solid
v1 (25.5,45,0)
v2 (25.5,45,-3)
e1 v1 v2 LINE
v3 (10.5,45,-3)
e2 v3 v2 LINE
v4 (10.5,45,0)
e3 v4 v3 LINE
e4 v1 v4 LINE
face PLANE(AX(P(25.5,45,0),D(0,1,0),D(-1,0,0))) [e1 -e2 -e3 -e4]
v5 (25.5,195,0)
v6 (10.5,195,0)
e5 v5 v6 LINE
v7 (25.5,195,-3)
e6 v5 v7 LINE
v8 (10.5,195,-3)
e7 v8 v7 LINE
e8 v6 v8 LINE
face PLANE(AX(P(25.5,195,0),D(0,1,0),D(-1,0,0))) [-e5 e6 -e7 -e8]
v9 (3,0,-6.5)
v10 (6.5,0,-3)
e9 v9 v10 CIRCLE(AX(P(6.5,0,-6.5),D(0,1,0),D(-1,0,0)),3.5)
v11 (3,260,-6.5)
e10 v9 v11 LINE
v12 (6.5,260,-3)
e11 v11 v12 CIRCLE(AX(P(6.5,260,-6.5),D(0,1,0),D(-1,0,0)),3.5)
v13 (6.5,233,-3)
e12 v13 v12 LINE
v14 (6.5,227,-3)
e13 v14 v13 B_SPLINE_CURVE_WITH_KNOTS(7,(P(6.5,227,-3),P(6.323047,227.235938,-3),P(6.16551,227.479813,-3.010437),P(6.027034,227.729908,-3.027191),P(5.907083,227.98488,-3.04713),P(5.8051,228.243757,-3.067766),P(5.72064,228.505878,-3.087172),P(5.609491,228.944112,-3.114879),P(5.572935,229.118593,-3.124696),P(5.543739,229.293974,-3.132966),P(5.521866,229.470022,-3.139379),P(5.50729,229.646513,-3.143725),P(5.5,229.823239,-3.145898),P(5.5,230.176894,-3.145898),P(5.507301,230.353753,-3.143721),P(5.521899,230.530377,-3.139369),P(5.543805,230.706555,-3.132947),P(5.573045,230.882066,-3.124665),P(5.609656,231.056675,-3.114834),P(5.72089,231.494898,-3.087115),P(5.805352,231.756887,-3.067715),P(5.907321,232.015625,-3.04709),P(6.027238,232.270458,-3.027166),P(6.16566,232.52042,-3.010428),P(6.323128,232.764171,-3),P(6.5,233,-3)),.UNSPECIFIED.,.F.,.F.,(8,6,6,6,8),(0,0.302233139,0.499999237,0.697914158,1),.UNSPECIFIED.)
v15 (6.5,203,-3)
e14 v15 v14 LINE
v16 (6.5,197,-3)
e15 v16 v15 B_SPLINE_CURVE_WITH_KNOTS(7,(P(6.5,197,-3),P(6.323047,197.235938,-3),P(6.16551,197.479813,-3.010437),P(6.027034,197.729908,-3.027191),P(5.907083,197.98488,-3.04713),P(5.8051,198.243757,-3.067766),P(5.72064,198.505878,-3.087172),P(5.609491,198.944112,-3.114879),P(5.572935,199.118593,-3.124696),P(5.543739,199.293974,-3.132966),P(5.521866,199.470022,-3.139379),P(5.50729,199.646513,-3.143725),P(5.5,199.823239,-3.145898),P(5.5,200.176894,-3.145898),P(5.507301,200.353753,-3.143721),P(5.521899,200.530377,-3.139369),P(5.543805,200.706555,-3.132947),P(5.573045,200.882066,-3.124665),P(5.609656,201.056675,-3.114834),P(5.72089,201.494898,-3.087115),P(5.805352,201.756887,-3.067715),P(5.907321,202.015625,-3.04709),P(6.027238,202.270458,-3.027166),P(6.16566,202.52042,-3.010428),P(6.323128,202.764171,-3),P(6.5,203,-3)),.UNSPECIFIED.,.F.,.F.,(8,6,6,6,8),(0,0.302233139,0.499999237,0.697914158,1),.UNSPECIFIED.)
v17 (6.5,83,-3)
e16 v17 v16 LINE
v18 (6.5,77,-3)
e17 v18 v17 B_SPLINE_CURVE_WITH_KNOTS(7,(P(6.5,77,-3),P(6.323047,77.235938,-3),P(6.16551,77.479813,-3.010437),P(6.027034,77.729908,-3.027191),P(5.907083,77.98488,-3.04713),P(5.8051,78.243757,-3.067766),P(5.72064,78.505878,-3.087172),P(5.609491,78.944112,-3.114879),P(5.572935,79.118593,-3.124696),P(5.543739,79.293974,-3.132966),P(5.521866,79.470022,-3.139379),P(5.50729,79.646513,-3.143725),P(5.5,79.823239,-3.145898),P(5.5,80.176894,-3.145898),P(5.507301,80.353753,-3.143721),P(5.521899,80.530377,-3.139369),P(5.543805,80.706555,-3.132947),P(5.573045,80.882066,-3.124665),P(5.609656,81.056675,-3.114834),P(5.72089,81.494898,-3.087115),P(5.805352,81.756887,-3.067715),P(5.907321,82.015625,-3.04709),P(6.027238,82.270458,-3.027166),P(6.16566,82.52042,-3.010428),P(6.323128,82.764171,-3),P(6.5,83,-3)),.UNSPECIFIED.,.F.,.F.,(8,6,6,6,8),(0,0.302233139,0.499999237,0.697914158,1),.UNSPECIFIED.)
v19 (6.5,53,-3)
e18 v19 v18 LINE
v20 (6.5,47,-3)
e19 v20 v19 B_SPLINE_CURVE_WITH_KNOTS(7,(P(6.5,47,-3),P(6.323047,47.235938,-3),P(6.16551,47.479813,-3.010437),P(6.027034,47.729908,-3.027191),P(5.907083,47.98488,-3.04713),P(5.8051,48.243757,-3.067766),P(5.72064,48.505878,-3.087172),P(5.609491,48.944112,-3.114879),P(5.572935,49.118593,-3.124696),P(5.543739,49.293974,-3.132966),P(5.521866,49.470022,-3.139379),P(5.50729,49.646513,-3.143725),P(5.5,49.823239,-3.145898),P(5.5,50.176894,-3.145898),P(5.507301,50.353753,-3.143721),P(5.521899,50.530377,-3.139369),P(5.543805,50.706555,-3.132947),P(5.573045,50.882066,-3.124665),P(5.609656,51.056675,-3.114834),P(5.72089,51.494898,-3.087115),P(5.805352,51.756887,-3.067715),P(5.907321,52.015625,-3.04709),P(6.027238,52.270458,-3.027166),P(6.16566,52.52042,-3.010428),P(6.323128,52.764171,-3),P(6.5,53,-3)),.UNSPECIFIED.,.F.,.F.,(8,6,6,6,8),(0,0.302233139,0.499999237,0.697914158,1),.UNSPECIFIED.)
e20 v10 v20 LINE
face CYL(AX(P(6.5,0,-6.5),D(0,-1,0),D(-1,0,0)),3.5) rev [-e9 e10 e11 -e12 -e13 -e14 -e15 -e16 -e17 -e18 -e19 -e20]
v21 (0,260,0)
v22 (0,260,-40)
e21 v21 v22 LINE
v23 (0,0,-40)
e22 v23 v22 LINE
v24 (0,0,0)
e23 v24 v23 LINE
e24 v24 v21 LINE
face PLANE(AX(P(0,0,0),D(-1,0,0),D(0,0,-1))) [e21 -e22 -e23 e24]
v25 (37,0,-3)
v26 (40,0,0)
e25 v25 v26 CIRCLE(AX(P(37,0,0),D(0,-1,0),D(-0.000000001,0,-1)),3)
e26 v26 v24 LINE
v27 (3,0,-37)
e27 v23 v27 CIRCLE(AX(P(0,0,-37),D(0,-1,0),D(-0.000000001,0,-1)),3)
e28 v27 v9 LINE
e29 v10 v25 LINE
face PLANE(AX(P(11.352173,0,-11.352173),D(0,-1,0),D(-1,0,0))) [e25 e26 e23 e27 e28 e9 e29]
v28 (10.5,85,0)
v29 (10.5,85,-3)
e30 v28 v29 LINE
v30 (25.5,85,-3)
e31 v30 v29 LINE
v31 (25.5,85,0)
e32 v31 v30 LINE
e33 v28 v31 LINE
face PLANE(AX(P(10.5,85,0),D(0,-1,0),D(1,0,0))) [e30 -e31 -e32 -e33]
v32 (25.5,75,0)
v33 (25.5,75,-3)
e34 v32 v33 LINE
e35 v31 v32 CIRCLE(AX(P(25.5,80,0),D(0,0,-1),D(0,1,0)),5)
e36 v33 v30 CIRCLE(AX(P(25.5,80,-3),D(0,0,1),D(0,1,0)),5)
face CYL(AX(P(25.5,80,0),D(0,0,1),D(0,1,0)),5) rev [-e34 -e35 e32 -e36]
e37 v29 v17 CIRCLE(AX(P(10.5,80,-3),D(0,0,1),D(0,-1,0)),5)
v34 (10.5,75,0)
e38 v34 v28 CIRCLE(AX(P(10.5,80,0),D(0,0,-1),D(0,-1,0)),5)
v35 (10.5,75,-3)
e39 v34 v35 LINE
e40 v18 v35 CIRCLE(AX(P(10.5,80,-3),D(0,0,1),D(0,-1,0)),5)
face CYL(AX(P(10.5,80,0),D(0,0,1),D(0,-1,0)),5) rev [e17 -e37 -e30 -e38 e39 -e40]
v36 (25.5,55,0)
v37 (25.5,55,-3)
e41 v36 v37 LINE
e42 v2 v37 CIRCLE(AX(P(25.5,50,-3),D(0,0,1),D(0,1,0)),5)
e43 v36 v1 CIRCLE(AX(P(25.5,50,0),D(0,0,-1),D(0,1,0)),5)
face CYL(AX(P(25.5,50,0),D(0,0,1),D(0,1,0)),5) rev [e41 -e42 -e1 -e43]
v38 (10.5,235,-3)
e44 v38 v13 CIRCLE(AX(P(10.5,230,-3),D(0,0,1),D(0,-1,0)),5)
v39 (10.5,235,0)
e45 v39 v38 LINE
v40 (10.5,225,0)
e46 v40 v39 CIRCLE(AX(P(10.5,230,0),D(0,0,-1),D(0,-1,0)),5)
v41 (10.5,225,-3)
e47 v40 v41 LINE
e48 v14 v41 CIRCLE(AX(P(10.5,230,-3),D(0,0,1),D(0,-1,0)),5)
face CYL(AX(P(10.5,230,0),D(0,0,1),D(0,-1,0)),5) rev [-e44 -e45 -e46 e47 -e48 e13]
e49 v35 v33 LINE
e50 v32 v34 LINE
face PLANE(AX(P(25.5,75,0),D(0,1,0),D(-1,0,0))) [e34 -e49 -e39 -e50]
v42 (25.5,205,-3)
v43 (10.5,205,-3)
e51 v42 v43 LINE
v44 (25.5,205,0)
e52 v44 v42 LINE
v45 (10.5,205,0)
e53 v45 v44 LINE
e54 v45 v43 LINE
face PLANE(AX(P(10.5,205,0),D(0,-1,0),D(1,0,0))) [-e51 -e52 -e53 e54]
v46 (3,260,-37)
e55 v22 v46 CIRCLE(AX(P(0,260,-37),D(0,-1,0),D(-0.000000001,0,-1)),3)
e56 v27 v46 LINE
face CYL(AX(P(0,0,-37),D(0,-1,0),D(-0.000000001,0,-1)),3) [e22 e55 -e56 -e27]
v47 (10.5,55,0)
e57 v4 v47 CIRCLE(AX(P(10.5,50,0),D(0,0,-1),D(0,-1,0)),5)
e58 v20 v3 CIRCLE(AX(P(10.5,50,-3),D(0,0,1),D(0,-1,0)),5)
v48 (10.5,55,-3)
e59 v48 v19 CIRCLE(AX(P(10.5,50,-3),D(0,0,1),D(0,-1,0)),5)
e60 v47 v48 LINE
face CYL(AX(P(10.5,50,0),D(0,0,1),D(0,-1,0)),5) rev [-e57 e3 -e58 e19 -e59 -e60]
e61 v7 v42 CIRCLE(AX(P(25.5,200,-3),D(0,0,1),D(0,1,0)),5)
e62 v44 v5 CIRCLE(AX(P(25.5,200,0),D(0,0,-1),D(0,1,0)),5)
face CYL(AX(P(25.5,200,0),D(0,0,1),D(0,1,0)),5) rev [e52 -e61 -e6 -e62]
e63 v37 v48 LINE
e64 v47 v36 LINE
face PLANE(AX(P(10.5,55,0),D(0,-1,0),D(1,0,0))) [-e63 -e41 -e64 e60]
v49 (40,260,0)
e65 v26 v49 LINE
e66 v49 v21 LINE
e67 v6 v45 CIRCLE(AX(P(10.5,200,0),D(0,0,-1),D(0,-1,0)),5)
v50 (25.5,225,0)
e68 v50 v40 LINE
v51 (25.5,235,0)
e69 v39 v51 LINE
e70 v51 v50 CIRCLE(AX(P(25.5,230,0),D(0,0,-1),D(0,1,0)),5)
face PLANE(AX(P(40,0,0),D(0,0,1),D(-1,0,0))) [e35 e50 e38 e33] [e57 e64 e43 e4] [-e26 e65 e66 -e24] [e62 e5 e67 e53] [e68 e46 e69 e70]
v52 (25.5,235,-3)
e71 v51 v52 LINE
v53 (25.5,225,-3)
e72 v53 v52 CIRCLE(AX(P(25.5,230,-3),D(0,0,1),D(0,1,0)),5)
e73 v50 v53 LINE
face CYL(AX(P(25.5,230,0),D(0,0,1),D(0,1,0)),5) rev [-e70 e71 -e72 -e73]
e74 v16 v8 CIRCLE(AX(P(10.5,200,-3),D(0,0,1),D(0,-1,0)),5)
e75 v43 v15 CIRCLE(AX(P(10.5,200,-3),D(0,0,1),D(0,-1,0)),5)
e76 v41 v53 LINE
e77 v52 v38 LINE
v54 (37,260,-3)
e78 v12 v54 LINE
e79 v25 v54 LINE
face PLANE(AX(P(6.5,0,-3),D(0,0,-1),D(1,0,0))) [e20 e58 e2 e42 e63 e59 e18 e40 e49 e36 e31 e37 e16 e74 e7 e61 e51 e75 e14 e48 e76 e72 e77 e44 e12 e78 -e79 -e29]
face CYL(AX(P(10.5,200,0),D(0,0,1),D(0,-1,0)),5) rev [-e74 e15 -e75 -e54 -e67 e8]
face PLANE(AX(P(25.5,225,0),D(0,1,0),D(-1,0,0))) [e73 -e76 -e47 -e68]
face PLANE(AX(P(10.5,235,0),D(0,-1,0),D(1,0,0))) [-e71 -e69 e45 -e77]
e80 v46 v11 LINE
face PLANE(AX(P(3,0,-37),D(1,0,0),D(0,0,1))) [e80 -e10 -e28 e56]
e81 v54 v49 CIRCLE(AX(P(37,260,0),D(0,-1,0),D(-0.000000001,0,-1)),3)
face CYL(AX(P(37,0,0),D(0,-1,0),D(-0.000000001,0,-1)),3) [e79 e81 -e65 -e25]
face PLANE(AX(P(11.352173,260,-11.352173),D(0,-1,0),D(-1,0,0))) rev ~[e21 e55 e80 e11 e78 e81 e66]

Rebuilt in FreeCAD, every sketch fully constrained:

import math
import FreeCAD as App
import Part
import Sketcher
from FreeCAD import Vector
Q = App.Units.Quantity

doc = App.newDocument("Part")
body = doc.addObject("PartDesign::Body", "Body")

# Sketch on XZ plane
sketch1 = body.newObject("Sketcher::SketchObject", "Sketch")
sketch1.AttachmentSupport = (doc.getObject("XZ_Plane"), [""])
sketch1.MapMode = "FlatFace"
sketch1.addGeometry([
    Part.LineSegment(Vector(0, -40, 0), Vector(0, 0, 0)),  # 0
    Part.LineSegment(Vector(0, 0, 0), Vector(40, 0, 0)),  # 1
    Part.ArcOfCircle(Part.Circle(Vector(37, 0, 0), Vector(0, 0, 1), 3), math.radians(-90), math.radians(0)),  # 2
    Part.LineSegment(Vector(37, -3, 0), Vector(6.5, -3, 0)),  # 3
    Part.ArcOfCircle(Part.Circle(Vector(6.5, -6.5, 0), Vector(0, 0, 1), 3.5), math.radians(90), math.radians(180)),  # 4
    Part.LineSegment(Vector(3, -6.5, 0), Vector(3, -37, 0)),  # 5
    Part.ArcOfCircle(Part.Circle(Vector(0, -37, 0), Vector(0, 0, 1), 3), math.radians(-90), math.radians(0)),  # 6
], False)
sketch1.addConstraint([
    Sketcher.Constraint("Coincident", 0, 2, 1, 1),
    Sketcher.Constraint("Coincident", 1, 2, 2, 2),
    Sketcher.Constraint("Tangent", 2, 1, 3, 1),
    Sketcher.Constraint("Tangent", 3, 2, 4, 1),
    Sketcher.Constraint("Tangent", 4, 2, 5, 1),
    Sketcher.Constraint("Tangent", 5, 2, 6, 2),
    Sketcher.Constraint("Coincident", 6, 1, 0, 1),
    Sketcher.Constraint("Vertical", 0),
    Sketcher.Constraint("Horizontal", 1),
    Sketcher.Constraint("Horizontal", 3),
    Sketcher.Constraint("Vertical", 5),
    Sketcher.Constraint("Coincident", 0, 2, -1, 1),
    Sketcher.Constraint("Equal", 2, 6),
    Sketcher.Constraint("PointOnObject", 2, 3, -1),
    Sketcher.Constraint("PointOnObject", 6, 3, -2),
    Sketcher.Constraint("Equal", 1, 0),
    Sketcher.Constraint("Radius", 2, Q("3 mm")),
    Sketcher.Constraint("Radius", 4, Q("3.5 mm")),
    Sketcher.Constraint("DistanceX", 1, 1, 1, 2, Q("40 mm")),
])
pad1 = body.newObject("PartDesign::Pad", "Pad")
pad1.Profile = sketch1
pad1.Length = 260
pad1.Reversed = True

# Sketch on XY plane
sketch2 = body.newObject("Sketcher::SketchObject", "Sketch001")
sketch2.AttachmentSupport = (doc.getObject("XY_Plane"), [""])
sketch2.MapMode = "FlatFace"
sketch2.addGeometry([
    Part.LineSegment(Vector(26, 55, 0), Vector(10, 55, 0)),  # 0
    Part.ArcOfCircle(Part.Circle(Vector(10, 50, 0), Vector(0, 0, 1), 5), math.radians(90), math.radians(270)),  # 1
    Part.LineSegment(Vector(10, 45, 0), Vector(26, 45, 0)),  # 2
    Part.ArcOfCircle(Part.Circle(Vector(26, 50, 0), Vector(0, 0, 1), 5), math.radians(-90), math.radians(90)),  # 3
    Part.LineSegment(Vector(26, 85, 0), Vector(10, 85, 0)),  # 4
    Part.ArcOfCircle(Part.Circle(Vector(10, 80, 0), Vector(0, 0, 1), 5), math.radians(90), math.radians(270)),  # 5
    Part.LineSegment(Vector(10, 75, 0), Vector(26, 75, 0)),  # 6
    Part.ArcOfCircle(Part.Circle(Vector(26, 80, 0), Vector(0, 0, 1), 5), math.radians(-90), math.radians(90)),  # 7
    Part.LineSegment(Vector(26, 205, 0), Vector(10, 205, 0)),  # 8
    Part.ArcOfCircle(Part.Circle(Vector(10, 200, 0), Vector(0, 0, 1), 5), math.radians(90), math.radians(270)),  # 9
    Part.LineSegment(Vector(10, 195, 0), Vector(26, 195, 0)),  # 10
    Part.ArcOfCircle(Part.Circle(Vector(26, 200, 0), Vector(0, 0, 1), 5), math.radians(-90), math.radians(90)),  # 11
    Part.LineSegment(Vector(26, 235, 0), Vector(10, 235, 0)),  # 12
    Part.ArcOfCircle(Part.Circle(Vector(10, 230, 0), Vector(0, 0, 1), 5), math.radians(90), math.radians(270)),  # 13
    Part.LineSegment(Vector(10, 225, 0), Vector(26, 225, 0)),  # 14
    Part.ArcOfCircle(Part.Circle(Vector(26, 230, 0), Vector(0, 0, 1), 5), math.radians(-90), math.radians(90)),  # 15
], False)
sketch2.addConstraint([
    Sketcher.Constraint("Tangent", 0, 2, 1, 1),
    Sketcher.Constraint("Tangent", 1, 2, 2, 1),
    Sketcher.Constraint("Tangent", 2, 2, 3, 1),
    Sketcher.Constraint("Tangent", 3, 2, 0, 1),
    Sketcher.Constraint("Tangent", 4, 2, 5, 1),
    Sketcher.Constraint("Tangent", 5, 2, 6, 1),
    Sketcher.Constraint("Tangent", 6, 2, 7, 1),
    Sketcher.Constraint("Tangent", 7, 2, 4, 1),
    Sketcher.Constraint("Tangent", 8, 2, 9, 1),
    Sketcher.Constraint("Tangent", 9, 2, 10, 1),
    Sketcher.Constraint("Tangent", 10, 2, 11, 1),
    Sketcher.Constraint("Tangent", 11, 2, 8, 1),
    Sketcher.Constraint("Tangent", 12, 2, 13, 1),
    Sketcher.Constraint("Tangent", 13, 2, 14, 1),
    Sketcher.Constraint("Tangent", 14, 2, 15, 1),
    Sketcher.Constraint("Tangent", 15, 2, 12, 1),
    Sketcher.Constraint("Horizontal", 0),
    Sketcher.Constraint("Horizontal", 2),
    Sketcher.Constraint("Horizontal", 4),
    Sketcher.Constraint("Horizontal", 6),
    Sketcher.Constraint("Horizontal", 8),
    Sketcher.Constraint("Horizontal", 10),
    Sketcher.Constraint("Horizontal", 12),
    Sketcher.Constraint("Horizontal", 14),
    Sketcher.Constraint("Equal", 3, 5),
    Sketcher.Constraint("Equal", 7, 9),
    Sketcher.Constraint("Equal", 11, 13),
    Sketcher.Constraint("Vertical", 1, 3, 5, 3),
    Sketcher.Constraint("Vertical", 3, 3, 7, 3),
    Sketcher.Constraint("Vertical", 5, 3, 9, 3),
    Sketcher.Constraint("Vertical", 7, 3, 11, 3),
    Sketcher.Constraint("Vertical", 9, 3, 13, 3),
    Sketcher.Constraint("Vertical", 11, 3, 15, 3),
    Sketcher.Constraint("Radius", 1, Q("5 mm")),
    Sketcher.Constraint("DistanceX", 0, 2, 0, 1, Q("15 mm")),
    Sketcher.Constraint("DistanceY", -1, 1, 1, 3, Q("50 mm")),
    Sketcher.Constraint("DistanceY", -1, 1, 5, 3, Q("80 mm")),
    Sketcher.Constraint("DistanceY", -1, 1, 9, 3, Q("200 mm")),
    Sketcher.Constraint("DistanceY", -1, 1, 13, 3, Q("230 mm")),
    Sketcher.Constraint("DistanceX", -1, 1, 1, 3, Q("10.5 mm")),
])
pocket1 = body.newObject("PartDesign::Pocket", "Pocket")
pocket1.Profile = sketch2
pocket1.Length = 10

doc.recompute()
